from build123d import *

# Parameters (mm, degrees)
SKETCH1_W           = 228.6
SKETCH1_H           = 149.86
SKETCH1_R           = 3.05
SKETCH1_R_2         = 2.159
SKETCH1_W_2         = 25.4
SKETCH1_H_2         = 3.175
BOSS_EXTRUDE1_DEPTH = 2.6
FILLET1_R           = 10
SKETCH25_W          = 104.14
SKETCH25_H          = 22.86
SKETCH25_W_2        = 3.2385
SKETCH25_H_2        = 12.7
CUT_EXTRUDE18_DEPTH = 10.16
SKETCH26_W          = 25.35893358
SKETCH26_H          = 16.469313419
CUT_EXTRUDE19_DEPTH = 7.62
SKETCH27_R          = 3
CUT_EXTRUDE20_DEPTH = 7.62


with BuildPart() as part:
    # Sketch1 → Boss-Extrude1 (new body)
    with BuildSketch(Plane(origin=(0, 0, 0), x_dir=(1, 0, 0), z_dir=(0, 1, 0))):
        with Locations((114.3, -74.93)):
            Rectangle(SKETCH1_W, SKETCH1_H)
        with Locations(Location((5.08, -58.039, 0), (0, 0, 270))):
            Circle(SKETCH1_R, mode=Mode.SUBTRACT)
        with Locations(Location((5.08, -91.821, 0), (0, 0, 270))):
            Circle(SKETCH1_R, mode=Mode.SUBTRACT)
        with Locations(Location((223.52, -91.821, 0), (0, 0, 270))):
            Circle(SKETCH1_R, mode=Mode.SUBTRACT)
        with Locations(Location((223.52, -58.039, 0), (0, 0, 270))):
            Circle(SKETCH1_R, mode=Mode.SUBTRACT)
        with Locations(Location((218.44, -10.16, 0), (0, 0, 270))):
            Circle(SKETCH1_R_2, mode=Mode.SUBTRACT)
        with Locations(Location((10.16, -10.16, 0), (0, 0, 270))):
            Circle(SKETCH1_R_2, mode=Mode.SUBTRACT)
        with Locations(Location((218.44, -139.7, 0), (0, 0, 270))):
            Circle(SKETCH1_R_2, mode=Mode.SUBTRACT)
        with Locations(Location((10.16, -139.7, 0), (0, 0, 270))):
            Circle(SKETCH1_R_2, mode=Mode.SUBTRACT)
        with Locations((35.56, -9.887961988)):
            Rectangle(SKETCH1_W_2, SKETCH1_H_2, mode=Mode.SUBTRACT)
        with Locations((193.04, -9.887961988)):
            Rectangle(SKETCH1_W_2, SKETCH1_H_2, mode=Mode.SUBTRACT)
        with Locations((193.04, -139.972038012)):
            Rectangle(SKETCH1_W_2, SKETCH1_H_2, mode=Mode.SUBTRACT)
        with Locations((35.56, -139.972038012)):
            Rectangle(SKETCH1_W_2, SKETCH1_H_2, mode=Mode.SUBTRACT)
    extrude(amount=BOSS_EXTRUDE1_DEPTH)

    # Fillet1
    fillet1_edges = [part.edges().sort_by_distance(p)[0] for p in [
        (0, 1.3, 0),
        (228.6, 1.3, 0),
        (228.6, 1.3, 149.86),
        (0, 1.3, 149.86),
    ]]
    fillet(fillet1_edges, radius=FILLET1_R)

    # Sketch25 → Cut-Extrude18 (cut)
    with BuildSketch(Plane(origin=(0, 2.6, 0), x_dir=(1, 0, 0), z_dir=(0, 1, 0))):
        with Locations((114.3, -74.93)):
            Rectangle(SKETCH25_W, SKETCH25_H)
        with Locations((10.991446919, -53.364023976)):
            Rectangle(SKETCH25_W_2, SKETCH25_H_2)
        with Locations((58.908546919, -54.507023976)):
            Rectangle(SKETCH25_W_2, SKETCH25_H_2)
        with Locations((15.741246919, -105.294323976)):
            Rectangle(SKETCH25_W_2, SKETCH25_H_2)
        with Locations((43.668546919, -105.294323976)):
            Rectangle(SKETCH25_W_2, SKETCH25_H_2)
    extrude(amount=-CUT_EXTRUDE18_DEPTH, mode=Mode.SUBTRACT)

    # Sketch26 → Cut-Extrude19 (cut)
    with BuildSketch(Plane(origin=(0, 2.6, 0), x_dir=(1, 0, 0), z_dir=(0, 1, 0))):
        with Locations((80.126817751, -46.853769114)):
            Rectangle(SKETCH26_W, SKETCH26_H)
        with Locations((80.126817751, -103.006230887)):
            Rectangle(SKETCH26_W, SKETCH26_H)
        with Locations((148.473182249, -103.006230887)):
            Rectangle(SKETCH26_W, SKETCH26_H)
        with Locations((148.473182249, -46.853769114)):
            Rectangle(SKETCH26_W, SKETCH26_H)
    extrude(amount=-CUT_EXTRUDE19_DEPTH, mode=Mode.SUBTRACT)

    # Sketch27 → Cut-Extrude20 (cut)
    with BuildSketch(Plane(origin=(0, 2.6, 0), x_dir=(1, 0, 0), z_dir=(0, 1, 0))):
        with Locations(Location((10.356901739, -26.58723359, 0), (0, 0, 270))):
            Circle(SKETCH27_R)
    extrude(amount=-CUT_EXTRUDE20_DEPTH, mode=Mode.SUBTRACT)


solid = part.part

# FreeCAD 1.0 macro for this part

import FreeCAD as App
import Part
import Sketcher
Q = App.Units.Quantity


def edges_at(feature, points):
    """Names of the edges that pass closest to the given points."""
    edges = feature.Shape.Edges
    near = lambda p: min(range(len(edges)), key=lambda i: edges[i].distToShape(Part.Vertex(*p))[0])
    return sorted({f"Edge{near(p) + 1}" for p in points})

doc = App.newDocument("Part")
body = doc.addObject("PartDesign::Body", "Body")

sketch1 = body.newObject("Sketcher::SketchObject", "Sketch")
sketch1.AttachmentSupport = (doc.getObject("XZ_Plane"), [""])
sketch1.MapMode = "FlatFace"
sketch1.addGeometry([
    Part.LineSegment(App.Vector(0, 0, 0), App.Vector(0, 149.86, 0)),
    Part.LineSegment(App.Vector(0, 149.86, 0), App.Vector(228.6, 149.86, 0)),
    Part.LineSegment(App.Vector(228.6, 149.86, 0), App.Vector(228.6, 0, 0)),
    Part.LineSegment(App.Vector(228.6, 0, 0), App.Vector(0, 0, 0)),
    Part.Circle(App.Vector(10.16, 139.7, 0), App.Vector(0, 0, 1), 2.159),
    Part.LineSegment(App.Vector(48.26, 141.559538, 0), App.Vector(22.86, 141.559538, 0)),
    Part.LineSegment(App.Vector(22.86, 141.559538, 0), App.Vector(22.86, 138.384538, 0)),
    Part.LineSegment(App.Vector(22.86, 138.384538, 0), App.Vector(48.26, 138.384538, 0)),
    Part.LineSegment(App.Vector(48.26, 138.384538, 0), App.Vector(48.26, 141.559538, 0)),
    Part.Circle(App.Vector(5.08, 91.821, 0), App.Vector(0, 0, 1), 3.05),
    Part.LineSegment(App.Vector(205.74, 141.559538, 0), App.Vector(180.34, 141.559538, 0)),
    Part.LineSegment(App.Vector(180.34, 141.559538, 0), App.Vector(180.34, 138.384538, 0)),
    Part.LineSegment(App.Vector(180.34, 138.384538, 0), App.Vector(205.74, 138.384538, 0)),
    Part.LineSegment(App.Vector(205.74, 138.384538, 0), App.Vector(205.74, 141.559538, 0)),
    Part.Circle(App.Vector(218.44, 139.7, 0), App.Vector(0, 0, 1), 2.159),
    Part.Circle(App.Vector(223.52, 91.821, 0), App.Vector(0, 0, 1), 3.05),
    Part.Circle(App.Vector(5.08, 58.039, 0), App.Vector(0, 0, 1), 3.05),
    Part.Circle(App.Vector(10.16, 10.16, 0), App.Vector(0, 0, 1), 2.159),
    Part.LineSegment(App.Vector(48.26, 11.475462, 0), App.Vector(22.86, 11.475462, 0)),
    Part.LineSegment(App.Vector(22.86, 11.475462, 0), App.Vector(22.86, 8.300462, 0)),
    Part.LineSegment(App.Vector(22.86, 8.300462, 0), App.Vector(48.26, 8.300462, 0)),
    Part.LineSegment(App.Vector(48.26, 8.300462, 0), App.Vector(48.26, 11.475462, 0)),
    Part.Circle(App.Vector(223.52, 58.039, 0), App.Vector(0, 0, 1), 3.05),
    Part.LineSegment(App.Vector(205.74, 11.475462, 0), App.Vector(180.34, 11.475462, 0)),
    Part.LineSegment(App.Vector(180.34, 11.475462, 0), App.Vector(180.34, 8.300462, 0)),
    Part.LineSegment(App.Vector(180.34, 8.300462, 0), App.Vector(205.74, 8.300462, 0)),
    Part.LineSegment(App.Vector(205.74, 8.300462, 0), App.Vector(205.74, 11.475462, 0)),
    Part.Circle(App.Vector(218.44, 10.16, 0), App.Vector(0, 0, 1), 2.159),
], False)
sketch1.addConstraint([
    Sketcher.Constraint("Coincident", 0, 2, 1, 1),
    Sketcher.Constraint("Coincident", 1, 2, 2, 1),
    Sketcher.Constraint("Coincident", 2, 2, 3, 1),
    Sketcher.Constraint("Coincident", 3, 2, 0, 1),
    Sketcher.Constraint("Coincident", 5, 2, 6, 1),
    Sketcher.Constraint("Coincident", 6, 2, 7, 1),
    Sketcher.Constraint("Coincident", 7, 2, 8, 1),
    Sketcher.Constraint("Coincident", 8, 2, 5, 1),
    Sketcher.Constraint("Coincident", 10, 2, 11, 1),
    Sketcher.Constraint("Coincident", 11, 2, 12, 1),
    Sketcher.Constraint("Coincident", 12, 2, 13, 1),
    Sketcher.Constraint("Coincident", 13, 2, 10, 1),
    Sketcher.Constraint("Coincident", 18, 2, 19, 1),
    Sketcher.Constraint("Coincident", 19, 2, 20, 1),
    Sketcher.Constraint("Coincident", 20, 2, 21, 1),
    Sketcher.Constraint("Coincident", 21, 2, 18, 1),
    Sketcher.Constraint("Coincident", 23, 2, 24, 1),
    Sketcher.Constraint("Coincident", 24, 2, 25, 1),
    Sketcher.Constraint("Coincident", 25, 2, 26, 1),
    Sketcher.Constraint("Coincident", 26, 2, 23, 1),
    Sketcher.Constraint("Vertical", 0),
    Sketcher.Constraint("Horizontal", 1),
    Sketcher.Constraint("Vertical", 2),
    Sketcher.Constraint("Horizontal", 3),
    Sketcher.Constraint("Horizontal", 5),
    Sketcher.Constraint("Vertical", 6),
    Sketcher.Constraint("Horizontal", 7),
    Sketcher.Constraint("Vertical", 8),
    Sketcher.Constraint("Horizontal", 10),
    Sketcher.Constraint("Vertical", 11),
    Sketcher.Constraint("Horizontal", 12),
    Sketcher.Constraint("Vertical", 13),
    Sketcher.Constraint("Horizontal", 18),
    Sketcher.Constraint("Vertical", 19),
    Sketcher.Constraint("Horizontal", 20),
    Sketcher.Constraint("Vertical", 21),
    Sketcher.Constraint("Horizontal", 23),
    Sketcher.Constraint("Vertical", 24),
    Sketcher.Constraint("Horizontal", 25),
    Sketcher.Constraint("Vertical", 26),
    Sketcher.Constraint("Coincident", 3, 2, -1, 1),
    Sketcher.Constraint("Equal", 4, 14),
    Sketcher.Constraint("Equal", 9, 15),
    Sketcher.Constraint("Equal", 15, 16),
    Sketcher.Constraint("Equal", 14, 17),
    Sketcher.Constraint("Equal", 16, 22),
    Sketcher.Constraint("Equal", 17, 27),
    Sketcher.Constraint("Horizontal", 4, 3, 14, 3),
    Sketcher.Constraint("Horizontal", 9, 3, 15, 3),
    Sketcher.Constraint("Horizontal", 16, 3, 22, 3),
    Sketcher.Constraint("Horizontal", 17, 3, 27, 3),
    Sketcher.Constraint("Horizontal", 8, 2, 10, 2),
    Sketcher.Constraint("Horizontal", 7, 2, 11, 2),
    Sketcher.Constraint("Horizontal", 21, 2, 23, 2),
    Sketcher.Constraint("Horizontal", 20, 2, 24, 2),
    Sketcher.Constraint("Vertical", 9, 3, 16, 3),
    Sketcher.Constraint("Vertical", 4, 3, 17, 3),
    Sketcher.Constraint("Vertical", 15, 3, 22, 3),
    Sketcher.Constraint("Vertical", 14, 3, 27, 3),
    Sketcher.Constraint("Vertical", 6, 2, 18, 2),
    Sketcher.Constraint("Vertical", 8, 2, 20, 2),
    Sketcher.Constraint("Vertical", 11, 2, 23, 2),
    Sketcher.Constraint("Vertical", 13, 2, 25, 2),
    Sketcher.Constraint("Equal", 7, 10),
    Sketcher.Constraint("Equal", 13, 19),
    Sketcher.Constraint("Diameter", 4, Q("0.17 in")),
    Sketcher.Constraint("DistanceX", 1, 1, 1, 2, Q("9 in")),
    Sketcher.Constraint("DistanceX", 5, 2, 5, 1, Q("1 in")),
    Sketcher.Constraint("DistanceY", 0, 1, 0, 2, Q("5.9 in")),
    Sketcher.Constraint("DistanceX", -1, 1, 4, 3, Q("0.4 in")),
    Sketcher.Constraint("DistanceY", -1, 1, 4, 3, Q("5.5 in")),
    Sketcher.Constraint("DistanceX", -1, 1, 9, 3, Q("0.2 in")),
    Sketcher.Constraint("DistanceX", -1, 1, 14, 3, Q("8.6 in")),
    Sketcher.Constraint("DistanceX", -1, 1, 15, 3, Q("8.8 in")),
    Sketcher.Constraint("DistanceY", -1, 1, 17, 3, Q("0.4 in")),
    Sketcher.Constraint("DistanceX", -1, 1, 5, 2, Q("0.9 in")),
    Sketcher.Constraint("DistanceX", -1, 1, 10, 2, Q("7.1 in")),
    Sketcher.Constraint("Diameter", 9, 6.1),
    Sketcher.Constraint("DistanceY", 6, 2, 6, 1, Q("0.125 in")),
    Sketcher.Constraint("DistanceY", 16, 3, 9, 3, Q("1.33 in")),
    Sketcher.Constraint("DistanceY", -1, 1, 9, 3, Q("3.615 in")),
    Sketcher.Constraint("DistanceY", -1, 1, 5, 2, 141.559538),
    Sketcher.Constraint("DistanceY", -1, 1, 18, 2, 11.475462),
])
pad1 = body.newObject("PartDesign::Pad", "Pad")
pad1.Profile = sketch1
pad1.Length = 2.6
pad1.Reversed = True
doc.recompute()

fillet = body.newObject("PartDesign::Fillet", "Fillet")
fillet.Base = (pad1, edges_at(pad1, [
    (0, 1.3, 0),
    (228.6, 1.3, 0),
    (228.6, 1.3, 149.86),
    (0, 1.3, 149.86),
]))
fillet.Radius = 10

sketch2 = body.newObject("Sketcher::SketchObject", "Sketch001")
sketch2.AttachmentSupport = (doc.getObject("XZ_Plane"), [""])
sketch2.MapMode = "FlatFace"
sketch2.AttachmentOffset = App.Placement(App.Vector(0, 0, -2.6), App.Rotation())
sketch2.addGeometry([
    Part.LineSegment(App.Vector(62.23, 63.5, 0), App.Vector(62.23, 86.36, 0)),
    Part.LineSegment(App.Vector(62.23, 86.36, 0), App.Vector(166.37, 86.36, 0)),
    Part.LineSegment(App.Vector(166.37, 86.36, 0), App.Vector(166.37, 63.5, 0)),
    Part.LineSegment(App.Vector(166.37, 63.5, 0), App.Vector(62.23, 63.5, 0)),
    Part.LineSegment(App.Vector(9.372197, 47.014024, 0), App.Vector(9.372197, 59.714024, 0)),
    Part.LineSegment(App.Vector(9.372197, 59.714024, 0), App.Vector(12.610697, 59.714024, 0)),
    Part.LineSegment(App.Vector(12.610697, 59.714024, 0), App.Vector(12.610697, 47.014024, 0)),
    Part.LineSegment(App.Vector(12.610697, 47.014024, 0), App.Vector(9.372197, 47.014024, 0)),
    Part.LineSegment(App.Vector(57.289297, 48.157024, 0), App.Vector(57.289297, 60.857024, 0)),
    Part.LineSegment(App.Vector(57.289297, 60.857024, 0), App.Vector(60.527797, 60.857024, 0)),
    Part.LineSegment(App.Vector(60.527797, 60.857024, 0), App.Vector(60.527797, 48.157024, 0)),
    Part.LineSegment(App.Vector(60.527797, 48.157024, 0), App.Vector(57.289297, 48.157024, 0)),
    Part.LineSegment(App.Vector(14.121997, 98.944324, 0), App.Vector(14.121997, 111.644324, 0)),
    Part.LineSegment(App.Vector(14.121997, 111.644324, 0), App.Vector(17.360497, 111.644324, 0)),
    Part.LineSegment(App.Vector(17.360497, 111.644324, 0), App.Vector(17.360497, 98.944324, 0)),
    Part.LineSegment(App.Vector(17.360497, 98.944324, 0), App.Vector(14.121997, 98.944324, 0)),
    Part.LineSegment(App.Vector(42.049297, 98.944324, 0), App.Vector(42.049297, 111.644324, 0)),
    Part.LineSegment(App.Vector(42.049297, 111.644324, 0), App.Vector(45.287797, 111.644324, 0)),
    Part.LineSegment(App.Vector(45.287797, 111.644324, 0), App.Vector(45.287797, 98.944324, 0)),
    Part.LineSegment(App.Vector(45.287797, 98.944324, 0), App.Vector(42.049297, 98.944324, 0)),
], False)
sketch2.addConstraint([
    Sketcher.Constraint("Coincident", 0, 2, 1, 1),
    Sketcher.Constraint("Coincident", 1, 2, 2, 1),
    Sketcher.Constraint("Coincident", 2, 2, 3, 1),
    Sketcher.Constraint("Coincident", 3, 2, 0, 1),
    Sketcher.Constraint("Coincident", 4, 2, 5, 1),
    Sketcher.Constraint("Coincident", 5, 2, 6, 1),
    Sketcher.Constraint("Coincident", 6, 2, 7, 1),
    Sketcher.Constraint("Coincident", 7, 2, 4, 1),
    Sketcher.Constraint("Coincident", 8, 2, 9, 1),
    Sketcher.Constraint("Coincident", 9, 2, 10, 1),
    Sketcher.Constraint("Coincident", 10, 2, 11, 1),
    Sketcher.Constraint("Coincident", 11, 2, 8, 1),
    Sketcher.Constraint("Coincident", 12, 2, 13, 1),
    Sketcher.Constraint("Coincident", 13, 2, 14, 1),
    Sketcher.Constraint("Coincident", 14, 2, 15, 1),
    Sketcher.Constraint("Coincident", 15, 2, 12, 1),
    Sketcher.Constraint("Coincident", 16, 2, 17, 1),
    Sketcher.Constraint("Coincident", 17, 2, 18, 1),
    Sketcher.Constraint("Coincident", 18, 2, 19, 1),
    Sketcher.Constraint("Coincident", 19, 2, 16, 1),
    Sketcher.Constraint("Vertical", 0),
    Sketcher.Constraint("Horizontal", 1),
    Sketcher.Constraint("Vertical", 2),
    Sketcher.Constraint("Horizontal", 3),
    Sketcher.Constraint("Vertical", 4),
    Sketcher.Constraint("Horizontal", 5),
    Sketcher.Constraint("Vertical", 6),
    Sketcher.Constraint("Horizontal", 7),
    Sketcher.Constraint("Vertical", 8),
    Sketcher.Constraint("Horizontal", 9),
    Sketcher.Constraint("Vertical", 10),
    Sketcher.Constraint("Horizontal", 11),
    Sketcher.Constraint("Vertical", 12),
    Sketcher.Constraint("Horizontal", 13),
    Sketcher.Constraint("Vertical", 14),
    Sketcher.Constraint("Horizontal", 15),
    Sketcher.Constraint("Vertical", 16),
    Sketcher.Constraint("Horizontal", 17),
    Sketcher.Constraint("Vertical", 18),
    Sketcher.Constraint("Horizontal", 19),
    Sketcher.Constraint("Horizontal", 13, 2, 16, 2),
    Sketcher.Constraint("Horizontal", 15, 2, 18, 2),
    Sketcher.Constraint("Equal", 7, 9),
    Sketcher.Constraint("Equal", 11, 13),
    Sketcher.Constraint("Equal", 15, 17),
    Sketcher.Constraint("Equal", 6, 8),
    Sketcher.Constraint("Equal", 10, 12),
    Sketcher.Constraint("DistanceX", 1, 1, 1, 2, Q("4.1 in")),
    Sketcher.Constraint("DistanceY", 0, 1, 0, 2, Q("0.9 in")),
    Sketcher.Constraint("DistanceY", 4, 1, 4, 2, Q("0.5 in")),
    Sketcher.Constraint("DistanceY", -1, 1, 0, 2, Q("3.4 in")),
    Sketcher.Constraint("DistanceX", -1, 1, 0, 2, Q("2.45 in")),
    Sketcher.Constraint("DistanceX", 5, 1, 5, 2, Q("0.1275 in")),
    Sketcher.Constraint("DistanceX", 5, 2, 8, 2, Q("1.759 in")),
    Sketcher.Constraint("DistanceY", 5, 2, 8, 2, Q("0.045 in")),
    Sketcher.Constraint("DistanceX", 4, 2, 12, 2, Q("0.187 in")),
    Sketcher.Constraint("DistanceX", 13, 2, 16, 2, Q("0.972 in")),
    Sketcher.Constraint("DistanceY", 5, 2, 12, 2, Q("2.0445 in")),
    Sketcher.Constraint("DistanceX", -1, 1, 4, 2, 9.372197),
    Sketcher.Constraint("DistanceY", -1, 1, 4, 2, 59.714024),
])
pocket1 = body.newObject("PartDesign::Pocket", "Pocket")
pocket1.Profile = sketch2
pocket1.Length = Q("0.4 in")
pocket1.Reversed = True

sketch3 = body.newObject("Sketcher::SketchObject", "Sketch002")
sketch3.AttachmentSupport = (doc.getObject("XZ_Plane"), [""])
sketch3.MapMode = "FlatFace"
sketch3.AttachmentOffset = App.Placement(App.Vector(0, 0, -2.6), App.Rotation())
sketch3.addGeometry([
    Part.LineSegment(App.Vector(67.447351, 38.619112, 0), App.Vector(67.447351, 55.088426, 0)),
    Part.LineSegment(App.Vector(67.447351, 55.088426, 0), App.Vector(92.806285, 55.088426, 0)),
    Part.LineSegment(App.Vector(92.806285, 55.088426, 0), App.Vector(92.806285, 38.619112, 0)),
    Part.LineSegment(App.Vector(92.806285, 38.619112, 0), App.Vector(67.447351, 38.619112, 0)),
    Part.LineSegment(App.Vector(67.447351, 94.771574, 0), App.Vector(67.447351, 111.240888, 0)),
    Part.LineSegment(App.Vector(67.447351, 111.240888, 0), App.Vector(92.806285, 111.240888, 0)),
    Part.LineSegment(App.Vector(92.806285, 111.240888, 0), App.Vector(92.806285, 94.771574, 0)),
    Part.LineSegment(App.Vector(92.806285, 94.771574, 0), App.Vector(67.447351, 94.771574, 0)),
    Part.LineSegment(App.Vector(135.793715, 94.771574, 0), App.Vector(135.793715, 111.240888, 0)),
    Part.LineSegment(App.Vector(135.793715, 111.240888, 0), App.Vector(161.152649, 111.240888, 0)),
    Part.LineSegment(App.Vector(161.152649, 111.240888, 0), App.Vector(161.152649, 94.771574, 0)),
    Part.LineSegment(App.Vector(161.152649, 94.771574, 0), App.Vector(135.793715, 94.771574, 0)),
    Part.LineSegment(App.Vector(135.793715, 38.619112, 0), App.Vector(135.793715, 55.088426, 0)),
    Part.LineSegment(App.Vector(135.793715, 55.088426, 0), App.Vector(161.152649, 55.088426, 0)),
    Part.LineSegment(App.Vector(161.152649, 55.088426, 0), App.Vector(161.152649, 38.619112, 0)),
    Part.LineSegment(App.Vector(161.152649, 38.619112, 0), App.Vector(135.793715, 38.619112, 0)),
], False)
sketch3.addConstraint([
    Sketcher.Constraint("Coincident", 0, 2, 1, 1),
    Sketcher.Constraint("Coincident", 1, 2, 2, 1),
    Sketcher.Constraint("Coincident", 2, 2, 3, 1),
    Sketcher.Constraint("Coincident", 3, 2, 0, 1),
    Sketcher.Constraint("Coincident", 4, 2, 5, 1),
    Sketcher.Constraint("Coincident", 5, 2, 6, 1),
    Sketcher.Constraint("Coincident", 6, 2, 7, 1),
    Sketcher.Constraint("Coincident", 7, 2, 4, 1),
    Sketcher.Constraint("Coincident", 8, 2, 9, 1),
    Sketcher.Constraint("Coincident", 9, 2, 10, 1),
    Sketcher.Constraint("Coincident", 10, 2, 11, 1),
    Sketcher.Constraint("Coincident", 11, 2, 8, 1),
    Sketcher.Constraint("Coincident", 12, 2, 13, 1),
    Sketcher.Constraint("Coincident", 13, 2, 14, 1),
    Sketcher.Constraint("Coincident", 14, 2, 15, 1),
    Sketcher.Constraint("Coincident", 15, 2, 12, 1),
    Sketcher.Constraint("Vertical", 0),
    Sketcher.Constraint("Horizontal", 1),
    Sketcher.Constraint("Vertical", 2),
    Sketcher.Constraint("Horizontal", 3),
    Sketcher.Constraint("Vertical", 4),
    Sketcher.Constraint("Horizontal", 5),
    Sketcher.Constraint("Vertical", 6),
    Sketcher.Constraint("Horizontal", 7),
    Sketcher.Constraint("Vertical", 8),
    Sketcher.Constraint("Horizontal", 9),
    Sketcher.Constraint("Vertical", 10),
    Sketcher.Constraint("Horizontal", 11),
    Sketcher.Constraint("Vertical", 12),
    Sketcher.Constraint("Horizontal", 13),
    Sketcher.Constraint("Vertical", 14),
    Sketcher.Constraint("Horizontal", 15),
    Sketcher.Constraint("Horizontal", 5, 2, 8, 2),
    Sketcher.Constraint("Horizontal", 7, 2, 10, 2),
    Sketcher.Constraint("Horizontal", 1, 2, 12, 2),
    Sketcher.Constraint("Horizontal", 3, 2, 14, 2),
    Sketcher.Constraint("Vertical", 3, 2, 4, 2),
    Sketcher.Constraint("Vertical", 2, 2, 5, 2),
    Sketcher.Constraint("Vertical", 11, 2, 12, 2),
    Sketcher.Constraint("Vertical", 10, 2, 13, 2),
    Sketcher.Constraint("Equal", 7, 9),
    Sketcher.Constraint("Equal", 2, 4),
    Sketcher.Constraint("DistanceX", 4, 2, 9, 2, 93.705298),
    Sketcher.Constraint("DistanceX", 1, 1, 1, 2, 25.358934),
    Sketcher.Constraint("DistanceY", 0, 1, 0, 2, 16.469313),
    Sketcher.Constraint("DistanceX", -1, 1, 0, 2, 67.447351),
    Sketcher.Constraint("DistanceY", 0, 2, 4, 2, 56.152462),
    Sketcher.Constraint("DistanceY", -1, 1, 0, 2, 55.088426),
])
pocket2 = body.newObject("PartDesign::Pocket", "Pocket001")
pocket2.Profile = sketch3
pocket2.Length = Q("0.3 in")
pocket2.Reversed = True

sketch4 = body.newObject("Sketcher::SketchObject", "Sketch003")
sketch4.AttachmentSupport = (doc.getObject("XZ_Plane"), [""])
sketch4.MapMode = "FlatFace"
sketch4.AttachmentOffset = App.Placement(App.Vector(0, 0, -2.6), App.Rotation())
sketch4.addGeometry(Part.Circle(App.Vector(10.356902, 26.587234, 0), App.Vector(0, 0, 1), 3), False)
sketch4.addConstraint([
    Sketcher.Constraint("Diameter", 0, 6.0),
    Sketcher.Constraint("DistanceX", -1, 1, 0, 3, 10.356902),
    Sketcher.Constraint("DistanceY", -1, 1, 0, 3, 26.587234),
])
pocket3 = body.newObject("PartDesign::Pocket", "Pocket002")
pocket3.Profile = sketch4
pocket3.Length = Q("0.3 in")
pocket3.Reversed = True

doc.recompute()
